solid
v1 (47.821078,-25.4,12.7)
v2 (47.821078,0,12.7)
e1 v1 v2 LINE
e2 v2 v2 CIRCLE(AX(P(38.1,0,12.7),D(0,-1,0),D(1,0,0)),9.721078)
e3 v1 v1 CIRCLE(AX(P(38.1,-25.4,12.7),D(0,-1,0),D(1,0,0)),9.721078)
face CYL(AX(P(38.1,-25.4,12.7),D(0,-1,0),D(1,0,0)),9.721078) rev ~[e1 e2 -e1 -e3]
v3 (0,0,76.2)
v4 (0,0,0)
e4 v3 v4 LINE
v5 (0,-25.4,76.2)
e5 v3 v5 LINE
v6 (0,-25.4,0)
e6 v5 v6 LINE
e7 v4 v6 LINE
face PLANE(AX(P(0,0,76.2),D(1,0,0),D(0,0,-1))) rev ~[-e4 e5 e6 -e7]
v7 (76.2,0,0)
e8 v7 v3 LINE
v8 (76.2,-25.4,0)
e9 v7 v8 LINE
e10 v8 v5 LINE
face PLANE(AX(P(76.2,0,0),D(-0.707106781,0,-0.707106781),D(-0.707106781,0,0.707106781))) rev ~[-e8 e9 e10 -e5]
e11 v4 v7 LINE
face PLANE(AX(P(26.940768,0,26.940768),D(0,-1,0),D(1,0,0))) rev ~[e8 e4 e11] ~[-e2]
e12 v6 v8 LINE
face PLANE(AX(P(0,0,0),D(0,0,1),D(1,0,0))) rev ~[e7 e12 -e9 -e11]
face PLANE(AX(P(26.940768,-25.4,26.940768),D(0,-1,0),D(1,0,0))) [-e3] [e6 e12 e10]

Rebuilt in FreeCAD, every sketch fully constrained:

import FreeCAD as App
import Part
import Sketcher

V = App.Vector
Q = App.Units.Quantity

doc = App.newDocument("Part")
body = doc.addObject("PartDesign::Body", "Body")

# Sketch on XZ plane
sketch1 = doc.addObject("Sketcher::SketchObject", "Sketch")
body.addObject(sketch1)
sketch1.AttachmentSupport = (doc.XZ_Plane, [""])
sketch1.MapMode = "FlatFace"
sketch1.addGeometry(Part.LineSegment(V(0, 0, 0), V(76, 0, 0)), False)
sketch1.addGeometry(Part.LineSegment(V(76, 0, 0), V(0, 76, 0)), False)
sketch1.addGeometry(Part.LineSegment(V(0, 76, 0), V(0, 0, 0)), False)
sketch1.addConstraint(Sketcher.Constraint("Coincident", 0, 2, 1, 1))
sketch1.addConstraint(Sketcher.Constraint("Coincident", 1, 2, 2, 1))
sketch1.addConstraint(Sketcher.Constraint("Coincident", 2, 2, 0, 1))
sketch1.addConstraint(Sketcher.Constraint("Horizontal", 0))
sketch1.addConstraint(Sketcher.Constraint("Vertical", 2))
sketch1.addConstraint(Sketcher.Constraint("Coincident", 2, 2, -1, 1))
sketch1.addConstraint(Sketcher.Constraint("Equal", 0, 2))
sketch1.addConstraint(Sketcher.Constraint("DistanceX", 0, 1, 0, 2, Q("3 in")))
pad1 = doc.addObject("PartDesign::Pad", "Pad")
body.addObject(pad1)
pad1.Profile = sketch1
pad1.Length = Q("1 in")

# Sketch on XZ plane
sketch2 = doc.addObject("Sketcher::SketchObject", "Sketch001")
body.addObject(sketch2)
sketch2.AttachmentSupport = (doc.XZ_Plane, [""])
sketch2.MapMode = "FlatFace"
sketch2.AttachmentOffset = App.Placement(V(0, 0, 1 * 25.4), App.Rotation())
sketch2.addGeometry(Part.Circle(V(38, 13, 0), V(0, 0, 1), 10), False)
sketch2.addConstraint(Sketcher.Constraint("DistanceX", -1, 1, 0, 3, Q("1.5 in")))
sketch2.addConstraint(Sketcher.Constraint("DistanceY", -1, 1, 0, 3, Q("0.5 in")))
sketch2.addConstraint(Sketcher.Constraint("Diameter", 0, Q("19.442156 mm")))
pocket1 = doc.addObject("PartDesign::Pocket", "Pocket")
body.addObject(pocket1)
pocket1.Profile = sketch2
pocket1.Type = "ThroughAll"

doc.recompute()
